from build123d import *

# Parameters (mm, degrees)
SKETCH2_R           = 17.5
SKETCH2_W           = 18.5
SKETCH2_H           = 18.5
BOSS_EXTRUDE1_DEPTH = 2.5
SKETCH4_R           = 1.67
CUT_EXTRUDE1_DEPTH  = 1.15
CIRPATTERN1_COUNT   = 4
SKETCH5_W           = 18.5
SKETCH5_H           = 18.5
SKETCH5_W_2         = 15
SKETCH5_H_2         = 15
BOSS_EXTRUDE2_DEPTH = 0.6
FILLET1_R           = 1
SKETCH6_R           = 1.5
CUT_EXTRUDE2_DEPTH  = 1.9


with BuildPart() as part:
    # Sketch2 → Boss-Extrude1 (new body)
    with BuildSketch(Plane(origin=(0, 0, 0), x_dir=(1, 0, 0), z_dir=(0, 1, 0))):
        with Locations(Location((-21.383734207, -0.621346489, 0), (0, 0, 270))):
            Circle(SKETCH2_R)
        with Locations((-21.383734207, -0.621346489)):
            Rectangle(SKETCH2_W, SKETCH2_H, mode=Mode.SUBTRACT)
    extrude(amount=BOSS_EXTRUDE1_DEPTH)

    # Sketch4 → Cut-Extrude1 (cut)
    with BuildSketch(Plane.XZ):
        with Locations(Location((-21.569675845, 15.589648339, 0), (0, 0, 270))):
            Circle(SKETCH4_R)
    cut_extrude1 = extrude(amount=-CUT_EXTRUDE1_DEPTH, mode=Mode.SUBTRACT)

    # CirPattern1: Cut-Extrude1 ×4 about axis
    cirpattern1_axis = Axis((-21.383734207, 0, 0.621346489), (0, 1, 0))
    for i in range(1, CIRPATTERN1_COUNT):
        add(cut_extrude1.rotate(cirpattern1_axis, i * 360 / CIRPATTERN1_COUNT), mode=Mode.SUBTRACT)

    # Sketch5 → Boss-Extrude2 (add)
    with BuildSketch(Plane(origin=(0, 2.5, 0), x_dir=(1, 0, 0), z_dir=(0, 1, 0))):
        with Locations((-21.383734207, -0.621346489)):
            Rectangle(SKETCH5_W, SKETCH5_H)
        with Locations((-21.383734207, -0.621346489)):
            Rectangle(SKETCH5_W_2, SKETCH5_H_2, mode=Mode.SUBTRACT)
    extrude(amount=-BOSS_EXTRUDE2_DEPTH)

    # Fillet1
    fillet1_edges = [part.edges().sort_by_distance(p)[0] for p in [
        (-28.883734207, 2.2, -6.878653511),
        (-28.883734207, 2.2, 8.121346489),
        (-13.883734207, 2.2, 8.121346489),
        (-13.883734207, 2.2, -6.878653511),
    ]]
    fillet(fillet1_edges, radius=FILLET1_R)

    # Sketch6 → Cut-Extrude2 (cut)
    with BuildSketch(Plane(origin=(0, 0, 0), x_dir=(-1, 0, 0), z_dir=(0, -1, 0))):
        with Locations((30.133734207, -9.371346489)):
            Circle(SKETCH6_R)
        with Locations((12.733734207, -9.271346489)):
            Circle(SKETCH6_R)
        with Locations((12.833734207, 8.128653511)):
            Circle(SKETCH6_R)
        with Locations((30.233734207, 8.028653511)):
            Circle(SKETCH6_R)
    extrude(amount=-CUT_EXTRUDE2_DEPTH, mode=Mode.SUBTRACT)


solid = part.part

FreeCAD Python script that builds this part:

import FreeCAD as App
import Part
import Sketcher
Q = App.Units.Quantity


def edges_at(feature, points):
    """Names of the edges that pass closest to the given points."""
    edges = feature.Shape.Edges
    near = lambda p: min(range(len(edges)), key=lambda i: edges[i].distToShape(Part.Vertex(*p))[0])
    return sorted({f"Edge{near(p) + 1}" for p in points})


def add_polygon(sketch, points):
    """Adds a closed chain of lines whose ends are joined by coincident constraints."""
    first, n = sketch.GeometryCount, len(points)
    for a, b in zip(points, points[1:] + points[:1]):
        sketch.addGeometry(Part.LineSegment(App.Vector(*a, 0), App.Vector(*b, 0)), False)
    for i in range(n):
        sketch.addConstraint(Sketcher.Constraint("Coincident", first + i, 2, first + (i + 1) % n, 1))

doc = App.newDocument("Part")
params = doc.addObject("Spreadsheet::Sheet", "Params")
for row, (alias, value) in enumerate([
    ("sketch1_diameter", "35 mm"),
    ("sketch1_width", "18.5 mm"),
    ("pad1_length", "2.5 mm"),
    ("sketch2_diameter", "3.34 mm"),
    ("pocket1_length", "1.15 mm"),
    ("sketch3_width", "15 mm"),
    ("sketch3_width2", "18.5 mm"),
    ("pad2_length", "0.6 mm"),
    ("fillet_radius", "1 mm"),
    ("sketch4_diameter", "3 mm"),
    ("pocket2_length", "1.9 mm"),
], start=1):
    params.set(f"A{row}", alias)
    params.set(f"B{row}", "=" + value)
    params.setAlias(f"B{row}", alias)

body = doc.addObject("PartDesign::Body", "Body")

sketch1 = doc.addObject("Sketcher::SketchObject", "Sketch")
body.addObject(sketch1)
sketch1.AttachmentSupport = (doc.XZ_Plane, [""])
sketch1.MapMode = "FlatFace"
sketch1.addGeometry(Part.Circle(App.Vector(-21, 1, 0), App.Vector(0, 0, 1), 18), False)
add_polygon(sketch1, [(-12, 10), (-31, 10), (-31, -9), (-12, -9)])
sketch1.addConstraint([
    Sketcher.Constraint("Horizontal", 1),
    Sketcher.Constraint("Vertical", 2),
    Sketcher.Constraint("Horizontal", 3),
    Sketcher.Constraint("Vertical", 4),
    Sketcher.Constraint("Equal", 3, 2),
    Sketcher.Constraint("Diameter", 0, Q("35 mm")),
    Sketcher.Constraint("DistanceX", 1, 2, 1, 1, Q("18.5 mm")),
    Sketcher.Constraint("DistanceX", 1, 2, 0, 3, Q("9.25 mm")),
    Sketcher.Constraint("DistanceY", 0, 3, 1, 2, Q("9.25 mm")),
    Sketcher.Constraint("DistanceX", 0, 3, -1, 1, Q("21.383734 mm")),
    Sketcher.Constraint("DistanceY", -1, 1, 0, 3, Q("0.621346 mm")),
])
sketch1.setExpression("Constraints[9]", "Params.sketch1_diameter")
sketch1.setExpression("Constraints[10]", "Params.sketch1_width")
pad1 = doc.addObject("PartDesign::Pad", "Pad")
body.addObject(pad1)
pad1.Profile = sketch1
pad1.setExpression("Length", "Params.pad1_length")
pad1.Reversed = True

sketch2 = doc.addObject("Sketcher::SketchObject", "Sketch001")
body.addObject(sketch2)
sketch2.AttachmentSupport = (doc.XZ_Plane, [""])
sketch2.MapMode = "FlatFace"
sketch2.addGeometry(Part.Circle(App.Vector(-21.6, 15.6, 0), App.Vector(0, 0, 1), 1.7), False)
sketch2.addConstraint([
    Sketcher.Constraint("Diameter", 0, Q("3.34 mm")),
    Sketcher.Constraint("DistanceY", -1, 1, 0, 3, Q("15.589648 mm")),
    Sketcher.Constraint("DistanceX", 0, 3, -1, 1, Q("21.569676 mm")),
])
sketch2.setExpression("Constraints[0]", "Params.sketch2_diameter")
pocket1 = doc.addObject("PartDesign::Pocket", "Pocket")
body.addObject(pocket1)
pocket1.Profile = sketch2
pocket1.setExpression("Length", "Params.pocket1_length")
doc.recompute()

datumline = doc.addObject("PartDesign::Line", "DatumLine")
body.addObject(datumline)
datumline.Placement = App.Placement(App.Vector(-21.383734, 0, 0.621346), App.Rotation(App.Vector(0, 0, 1), App.Vector(0, 1, 0)))
polarpattern = doc.addObject("PartDesign::PolarPattern", "PolarPattern")
body.addObject(polarpattern)
polarpattern.Originals = [pocket1]
polarpattern.Axis = (datumline, [""])
polarpattern.Angle = 360
polarpattern.Occurrences = 4
body.Tip = polarpattern

sketch3 = doc.addObject("Sketcher::SketchObject", "Sketch002")
body.addObject(sketch3)
sketch3.AttachmentSupport = (doc.XZ_Plane, [""])
sketch3.MapMode = "FlatFace"
sketch3.AttachmentOffset = App.Placement(App.Vector(0, 0, -2.5), App.Rotation())
add_polygon(sketch3, [(-31, -9), (-31, 10), (-12, 10), (-12, -9)])
add_polygon(sketch3, [(-14, 8), (-29, 8), (-29, -7), (-14, -7)])
sketch3.addConstraint([
    Sketcher.Constraint("Vertical", 0),
    Sketcher.Constraint("Horizontal", 1),
    Sketcher.Constraint("Vertical", 2),
    Sketcher.Constraint("Horizontal", 3),
    Sketcher.Constraint("Horizontal", 4),
    Sketcher.Constraint("Vertical", 5),
    Sketcher.Constraint("Horizontal", 6),
    Sketcher.Constraint("Vertical", 7),
    Sketcher.Constraint("Equal", 3, 0),
    Sketcher.Constraint("Equal", 6, 5),
    Sketcher.Constraint("DistanceX", 4, 2, 4, 1, Q("15 mm")),
    Sketcher.Constraint("DistanceX", 1, 1, 1, 2, Q("18.5 mm")),
    Sketcher.Constraint("DistanceX", 0, 2, 4, 2, Q("1.75 mm")),
    Sketcher.Constraint("DistanceY", 4, 2, 0, 2, Q("1.75 mm")),
    Sketcher.Constraint("DistanceX", 0, 2, -1, 1, Q("30.633734 mm")),
    Sketcher.Constraint("DistanceY", -1, 1, 0, 2, Q("9.871346 mm")),
])
sketch3.setExpression("Constraints[18]", "Params.sketch3_width")
sketch3.setExpression("Constraints[19]", "Params.sketch3_width2")
pad2 = doc.addObject("PartDesign::Pad", "Pad001")
body.addObject(pad2)
pad2.Profile = sketch3
pad2.setExpression("Length", "Params.pad2_length")
doc.recompute()

fillet = doc.addObject("PartDesign::Fillet", "Fillet")
body.addObject(fillet)
fillet.Base = (pad2, edges_at(pad2, [
    (-28.884, 2.2, -6.879),
    (-28.884, 2.2, 8.121),
    (-13.884, 2.2, 8.121),
    (-13.884, 2.2, -6.879),
]))
fillet.setExpression("Radius", "Params.fillet_radius")

sketch4 = doc.addObject("Sketcher::SketchObject", "Sketch003")
body.addObject(sketch4)
sketch4.AttachmentSupport = (doc.XZ_Plane, [""])
sketch4.MapMode = "FlatFace"
sketch4.addGeometry([
    Part.Circle(App.Vector(-30.1, 9.4, 0), App.Vector(0, 0, 1), 1.5),
    Part.Circle(App.Vector(-12.7, 9.3, 0), App.Vector(0, 0, 1), 1.5),
    Part.Circle(App.Vector(-12.8, -8.1, 0), App.Vector(0, 0, 1), 1.5),
    Part.Circle(App.Vector(-30.2, -8, 0), App.Vector(0, 0, 1), 1.5),
], False)
sketch4.addConstraint([
    Sketcher.Constraint("Equal", 0, 1),
    Sketcher.Constraint("Equal", 1, 2),
    Sketcher.Constraint("Equal", 2, 3),
    Sketcher.Constraint("Diameter", 0, Q("3 mm")),
    Sketcher.Constraint("DistanceX", 0, 3, 1, 3, Q("17.4 mm")),
    Sketcher.Constraint("DistanceY", 1, 3, 0, 3, Q("0.1 mm")),
    Sketcher.Constraint("DistanceX", 2, 3, 1, 3, Q("0.1 mm")),
    Sketcher.Constraint("DistanceY", 2, 3, 1, 3, Q("17.4 mm")),
    Sketcher.Constraint("DistanceX", 3, 3, 0, 3, Q("0.1 mm")),
    Sketcher.Constraint("DistanceY", 3, 3, 0, 3, Q("17.4 mm")),
    Sketcher.Constraint("DistanceX", 0, 3, -1, 1, Q("30.133734 mm")),
    Sketcher.Constraint("DistanceY", -1, 1, 0, 3, Q("9.371346 mm")),
])
sketch4.setExpression("Constraints[3]", "Params.sketch4_diameter")
pocket2 = doc.addObject("PartDesign::Pocket", "Pocket001")
body.addObject(pocket2)
pocket2.Profile = sketch4
pocket2.setExpression("Length", "Params.pocket2_length")

doc.recompute()
